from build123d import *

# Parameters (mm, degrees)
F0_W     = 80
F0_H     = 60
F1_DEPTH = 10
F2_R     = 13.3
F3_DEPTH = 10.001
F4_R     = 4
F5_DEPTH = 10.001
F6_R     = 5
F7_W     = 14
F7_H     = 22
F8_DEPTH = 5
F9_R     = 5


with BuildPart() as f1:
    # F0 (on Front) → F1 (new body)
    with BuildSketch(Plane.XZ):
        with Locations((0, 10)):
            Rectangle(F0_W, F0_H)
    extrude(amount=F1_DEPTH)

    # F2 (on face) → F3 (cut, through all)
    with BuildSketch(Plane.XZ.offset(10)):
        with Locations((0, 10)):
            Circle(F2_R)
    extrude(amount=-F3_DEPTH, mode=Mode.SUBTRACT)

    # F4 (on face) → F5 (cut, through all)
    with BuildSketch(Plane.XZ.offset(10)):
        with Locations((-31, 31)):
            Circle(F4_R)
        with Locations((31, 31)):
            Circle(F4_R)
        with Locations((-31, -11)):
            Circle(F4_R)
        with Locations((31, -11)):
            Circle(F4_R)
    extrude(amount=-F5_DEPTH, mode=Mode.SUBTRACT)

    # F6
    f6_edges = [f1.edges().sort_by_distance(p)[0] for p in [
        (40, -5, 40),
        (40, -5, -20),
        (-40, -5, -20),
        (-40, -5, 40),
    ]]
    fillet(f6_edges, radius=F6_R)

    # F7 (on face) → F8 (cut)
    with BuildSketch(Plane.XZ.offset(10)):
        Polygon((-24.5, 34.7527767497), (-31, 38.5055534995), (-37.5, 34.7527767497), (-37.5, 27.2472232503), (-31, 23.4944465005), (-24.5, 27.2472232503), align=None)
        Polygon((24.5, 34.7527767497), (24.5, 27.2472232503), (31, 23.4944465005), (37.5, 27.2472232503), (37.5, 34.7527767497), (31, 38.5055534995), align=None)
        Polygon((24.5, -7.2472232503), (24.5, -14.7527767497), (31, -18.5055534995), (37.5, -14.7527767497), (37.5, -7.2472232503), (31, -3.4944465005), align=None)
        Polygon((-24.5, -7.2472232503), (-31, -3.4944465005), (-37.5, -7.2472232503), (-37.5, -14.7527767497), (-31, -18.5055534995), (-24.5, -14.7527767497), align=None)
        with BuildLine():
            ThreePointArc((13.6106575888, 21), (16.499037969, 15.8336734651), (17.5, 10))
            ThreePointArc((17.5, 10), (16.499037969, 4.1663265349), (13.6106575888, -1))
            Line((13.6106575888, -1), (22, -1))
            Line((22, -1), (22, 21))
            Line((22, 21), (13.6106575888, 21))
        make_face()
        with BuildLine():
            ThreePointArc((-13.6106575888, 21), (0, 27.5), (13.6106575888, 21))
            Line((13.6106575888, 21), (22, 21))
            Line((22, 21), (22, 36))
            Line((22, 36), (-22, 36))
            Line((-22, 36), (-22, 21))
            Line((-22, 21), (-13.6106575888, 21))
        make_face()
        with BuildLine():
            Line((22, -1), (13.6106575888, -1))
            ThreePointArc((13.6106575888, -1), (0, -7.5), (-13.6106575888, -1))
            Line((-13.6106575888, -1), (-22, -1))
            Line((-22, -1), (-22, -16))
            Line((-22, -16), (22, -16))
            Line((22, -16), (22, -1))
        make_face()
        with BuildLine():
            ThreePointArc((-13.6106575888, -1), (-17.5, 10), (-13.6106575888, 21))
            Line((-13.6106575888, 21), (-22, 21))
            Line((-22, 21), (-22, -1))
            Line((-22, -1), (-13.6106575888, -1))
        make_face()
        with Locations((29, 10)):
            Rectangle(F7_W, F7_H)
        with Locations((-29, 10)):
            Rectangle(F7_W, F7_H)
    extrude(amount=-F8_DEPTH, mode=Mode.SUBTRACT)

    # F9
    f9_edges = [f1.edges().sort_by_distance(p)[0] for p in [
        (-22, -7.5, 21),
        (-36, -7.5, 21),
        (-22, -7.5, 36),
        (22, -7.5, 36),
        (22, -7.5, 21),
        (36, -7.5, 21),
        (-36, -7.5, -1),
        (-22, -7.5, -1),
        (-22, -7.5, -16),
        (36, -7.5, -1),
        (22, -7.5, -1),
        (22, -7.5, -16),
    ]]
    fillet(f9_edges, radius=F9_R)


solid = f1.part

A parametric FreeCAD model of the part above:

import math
import FreeCAD as App
import Part
import Sketcher

V = App.Vector
Q = App.Units.Quantity


def edges_at(feature, points):
    """Names of the edges that pass closest to the given points."""
    edges = feature.Shape.Edges
    near = lambda p: min(range(len(edges)), key=lambda i: edges[i].distToShape(Part.Vertex(*p))[0])
    return sorted({f"Edge{near(p) + 1}" for p in points})

doc = App.newDocument("Part")
body = doc.addObject("PartDesign::Body", "Body")

# Sketch on XZ plane
sketch1 = body.newObject("Sketcher::SketchObject", "Sketch")
sketch1.AttachmentSupport = (doc.getObject("XZ_Plane"), [""])
sketch1.MapMode = "FlatFace"
sketch1.addGeometry([
    Part.LineSegment(V(-40, 40, 0), V(-40, -20, 0)),
    Part.LineSegment(V(-40, -20, 0), V(40, -20, 0)),
    Part.LineSegment(V(40, -20, 0), V(40, 40, 0)),
    Part.LineSegment(V(40, 40, 0), V(-40, 40, 0)),
], False)
sketch1.addConstraint([
    Sketcher.Constraint("Coincident", 0, 2, 1, 1),
    Sketcher.Constraint("Coincident", 1, 2, 2, 1),
    Sketcher.Constraint("Coincident", 2, 2, 3, 1),
    Sketcher.Constraint("Coincident", 3, 2, 0, 1),
    Sketcher.Constraint("Vertical", 0),
    Sketcher.Constraint("Horizontal", 1),
    Sketcher.Constraint("Vertical", 2),
    Sketcher.Constraint("Horizontal", 3),
    Sketcher.Constraint("DistanceX", 1, 1, 1, 2, 80.0),
    Sketcher.Constraint("DistanceY", 0, 2, 0, 1, 60.0),
    Sketcher.Constraint("DistanceX", 0, 2, -1, 1, 40.0),
    Sketcher.Constraint("DistanceY", 0, 2, -1, 1, 20.0),
])
pad1 = body.newObject("PartDesign::Pad", "Pad")
pad1.Profile = sketch1
pad1.Length = 10

# Sketch on XZ plane
sketch2 = body.newObject("Sketcher::SketchObject", "Sketch001")
sketch2.AttachmentSupport = (doc.getObject("XZ_Plane"), [""])
sketch2.MapMode = "FlatFace"
sketch2.AttachmentOffset = App.Placement(V(0, 0, 10), App.Rotation())
sketch2.addGeometry(Part.Circle(V(0, 10, 0), V(0, 0, 1), 13), False)
sketch2.addConstraint([
    Sketcher.Constraint("PointOnObject", 0, 3, -2),
    Sketcher.Constraint("Diameter", 0, 26.6),
    Sketcher.Constraint("DistanceY", -1, 1, 0, 3, 10.0),
])
pocket1 = body.newObject("PartDesign::Pocket", "Pocket")
pocket1.Profile = sketch2
pocket1.Type = "ThroughAll"

# Sketch on XZ plane
sketch3 = body.newObject("Sketcher::SketchObject", "Sketch002")
sketch3.AttachmentSupport = (doc.getObject("XZ_Plane"), [""])
sketch3.MapMode = "FlatFace"
sketch3.AttachmentOffset = App.Placement(V(0, 0, 10), App.Rotation())
sketch3.addGeometry([
    Part.Circle(V(-31, 31, 0), V(0, 0, 1), 4),
    Part.Circle(V(31, 31, 0), V(0, 0, 1), 4),
    Part.Circle(V(-31, -11, 0), V(0, 0, 1), 4),
    Part.Circle(V(31, -11, 0), V(0, 0, 1), 4),
], False)
sketch3.addConstraint([
    Sketcher.Constraint("Equal", 0, 1),
    Sketcher.Constraint("Equal", 1, 2),
    Sketcher.Constraint("Equal", 2, 3),
    Sketcher.Constraint("Symmetric", 0, 3, 1, 3, -2),
    Sketcher.Constraint("Symmetric", 2, 3, 3, 3, -2),
    Sketcher.Constraint("Vertical", 0, 3, 2, 3),
    Sketcher.Constraint("Diameter", 0, 8.0),
    Sketcher.Constraint("DistanceX", 0, 3, -1, 1, 31.0),
    Sketcher.Constraint("DistanceY", -1, 1, 0, 3, 31.0),
    Sketcher.Constraint("DistanceY", 2, 3, -1, 1, 11.0),
])
pocket2 = body.newObject("PartDesign::Pocket", "Pocket001")
pocket2.Profile = sketch3
pocket2.Type = "ThroughAll"
doc.recompute()

fillet = body.newObject("PartDesign::Fillet", "Fillet")
fillet.Base = (pocket2, edges_at(pocket2, [
    (40, -5, 40),
    (40, -5, -20),
    (-40, -5, -20),
    (-40, -5, 40),
]))
fillet.Radius = 5

# Sketch on XZ plane
sketch4 = body.newObject("Sketcher::SketchObject", "Sketch003")
sketch4.AttachmentSupport = (doc.getObject("XZ_Plane"), [""])
sketch4.MapMode = "FlatFace"
sketch4.AttachmentOffset = App.Placement(V(0, 0, 10), App.Rotation())
sketch4.addGeometry([
    Part.LineSegment(V(-24, 35, 0), V(-31, 39, 0)),  # 0
    Part.LineSegment(V(-31, 39, 0), V(-38, 35, 0)),  # 1
    Part.LineSegment(V(-38, 35, 0), V(-38, 27, 0)),  # 2
    Part.LineSegment(V(-38, 27, 0), V(-31, 23, 0)),  # 3
    Part.LineSegment(V(-31, 23, 0), V(-24, 27, 0)),  # 4
    Part.LineSegment(V(-24, 27, 0), V(-24, 35, 0)),  # 5
    Part.LineSegment(V(24, 35, 0), V(24, 27, 0)),  # 6
    Part.LineSegment(V(24, 27, 0), V(31, 23, 0)),  # 7
    Part.LineSegment(V(31, 23, 0), V(38, 27, 0)),  # 8
    Part.LineSegment(V(38, 27, 0), V(38, 35, 0)),  # 9
    Part.LineSegment(V(38, 35, 0), V(31, 39, 0)),  # 10
    Part.LineSegment(V(31, 39, 0), V(24, 35, 0)),  # 11
    Part.LineSegment(V(24, -7, 0), V(24, -15, 0)),  # 12
    Part.LineSegment(V(24, -15, 0), V(31, -19, 0)),  # 13
    Part.LineSegment(V(31, -19, 0), V(38, -15, 0)),  # 14
    Part.LineSegment(V(38, -15, 0), V(38, -7, 0)),  # 15
    Part.LineSegment(V(38, -7, 0), V(31, -3, 0)),  # 16
    Part.LineSegment(V(31, -3, 0), V(24, -7, 0)),  # 17
    Part.LineSegment(V(-24, -7, 0), V(-31, -3, 0)),  # 18
    Part.LineSegment(V(-31, -3, 0), V(-38, -7, 0)),  # 19
    Part.LineSegment(V(-38, -7, 0), V(-38, -15, 0)),  # 20
    Part.LineSegment(V(-38, -15, 0), V(-31, -19, 0)),  # 21
    Part.LineSegment(V(-31, -19, 0), V(-24, -15, 0)),  # 22
    Part.LineSegment(V(-24, -15, 0), V(-24, -7, 0)),  # 23
    Part.LineSegment(V(-22, -16, 0), V(22, -16, 0)),  # 24
    Part.LineSegment(V(22, -16, 0), V(22, -1, 0)),  # 25
    Part.LineSegment(V(22, -1, 0), V(36, -1, 0)),  # 26
    Part.LineSegment(V(36, -1, 0), V(36, 21, 0)),  # 27
    Part.LineSegment(V(36, 21, 0), V(22, 21, 0)),  # 28
    Part.LineSegment(V(22, 21, 0), V(22, 36, 0)),  # 29
    Part.LineSegment(V(22, 36, 0), V(-22, 36, 0)),  # 30
    Part.LineSegment(V(-22, 36, 0), V(-22, 21, 0)),  # 31
    Part.LineSegment(V(-22, 21, 0), V(-36, 21, 0)),  # 32
    Part.LineSegment(V(-36, 21, 0), V(-36, -1, 0)),  # 33
    Part.LineSegment(V(-36, -1, 0), V(-22, -1, 0)),  # 34
    Part.LineSegment(V(-22, -1, 0), V(-22, -16, 0)),  # 35
    Part.ArcOfCircle(Part.Circle(V(0, 10, 0), V(0, 0, 1), 18), math.radians(-39), math.radians(39)),  # 36
    Part.ArcOfCircle(Part.Circle(V(0, 10, 0), V(0, 0, 1), 18), math.radians(-141), math.radians(-39)),  # 37
    Part.ArcOfCircle(Part.Circle(V(0, 10, 0), V(0, 0, 1), 18), math.radians(141), math.radians(219)),  # 38
    Part.ArcOfCircle(Part.Circle(V(0, 10, 0), V(0, 0, 1), 18), math.radians(39), math.radians(141)),  # 39
], False)
sketch4.addConstraint([
    Sketcher.Constraint("Coincident", 0, 2, 1, 1),
    Sketcher.Constraint("Coincident", 1, 2, 2, 1),
    Sketcher.Constraint("Coincident", 2, 2, 3, 1),
    Sketcher.Constraint("Coincident", 3, 2, 4, 1),
    Sketcher.Constraint("Coincident", 4, 2, 5, 1),
    Sketcher.Constraint("Coincident", 5, 2, 0, 1),
    Sketcher.Constraint("Coincident", 6, 2, 7, 1),
    Sketcher.Constraint("Coincident", 7, 2, 8, 1),
    Sketcher.Constraint("Coincident", 8, 2, 9, 1),
    Sketcher.Constraint("Coincident", 9, 2, 10, 1),
    Sketcher.Constraint("Coincident", 10, 2, 11, 1),
    Sketcher.Constraint("Coincident", 11, 2, 6, 1),
    Sketcher.Constraint("Coincident", 12, 2, 13, 1),
    Sketcher.Constraint("Coincident", 13, 2, 14, 1),
    Sketcher.Constraint("Coincident", 14, 2, 15, 1),
    Sketcher.Constraint("Coincident", 15, 2, 16, 1),
    Sketcher.Constraint("Coincident", 16, 2, 17, 1),
    Sketcher.Constraint("Coincident", 17, 2, 12, 1),
    Sketcher.Constraint("Coincident", 18, 2, 19, 1),
    Sketcher.Constraint("Coincident", 19, 2, 20, 1),
    Sketcher.Constraint("Coincident", 20, 2, 21, 1),
    Sketcher.Constraint("Coincident", 21, 2, 22, 1),
    Sketcher.Constraint("Coincident", 22, 2, 23, 1),
    Sketcher.Constraint("Coincident", 23, 2, 18, 1),
    Sketcher.Constraint("Coincident", 24, 2, 25, 1),
    Sketcher.Constraint("Coincident", 25, 2, 26, 1),
    Sketcher.Constraint("Coincident", 26, 2, 27, 1),
    Sketcher.Constraint("Coincident", 27, 2, 28, 1),
    Sketcher.Constraint("Coincident", 28, 2, 29, 1),
    Sketcher.Constraint("Coincident", 29, 2, 30, 1),
    Sketcher.Constraint("Coincident", 30, 2, 31, 1),
    Sketcher.Constraint("Coincident", 31, 2, 32, 1),
    Sketcher.Constraint("Coincident", 32, 2, 33, 1),
    Sketcher.Constraint("Coincident", 33, 2, 34, 1),
    Sketcher.Constraint("Coincident", 34, 2, 35, 1),
    Sketcher.Constraint("Coincident", 35, 2, 24, 1),
    Sketcher.Constraint("Tangent", 36, 1, 37, 2),
    Sketcher.Constraint("Tangent", 37, 1, 38, 2),
    Sketcher.Constraint("Tangent", 38, 1, 39, 2),
    Sketcher.Constraint("Tangent", 39, 1, 36, 2),
    Sketcher.Constraint("Vertical", 2),
    Sketcher.Constraint("Vertical", 5),
    Sketcher.Constraint("Vertical", 6),
    Sketcher.Constraint("Vertical", 9),
    Sketcher.Constraint("Vertical", 12),
    Sketcher.Constraint("Vertical", 15),
    Sketcher.Constraint("Vertical", 20),
    Sketcher.Constraint("Vertical", 23),
    Sketcher.Constraint("Horizontal", 24),
    Sketcher.Constraint("Vertical", 25),
    Sketcher.Constraint("Horizontal", 26),
    Sketcher.Constraint("Vertical", 27),
    Sketcher.Constraint("Horizontal", 28),
    Sketcher.Constraint("Vertical", 29),
    Sketcher.Constraint("Horizontal", 30),
    Sketcher.Constraint("Vertical", 31),
    Sketcher.Constraint("Horizontal", 32),
    Sketcher.Constraint("Vertical", 33),
    Sketcher.Constraint("Horizontal", 34),
    Sketcher.Constraint("Vertical", 35),
    Sketcher.Constraint("Equal", 36, 37),
    Sketcher.Constraint("Symmetric", 4, 2, 6, 2, -2),
    Sketcher.Constraint("Symmetric", 3, 2, 7, 2, -2),
    Sketcher.Constraint("Symmetric", 2, 2, 8, 2, -2),
    Sketcher.Constraint("Symmetric", 0, 2, 10, 2, -2),
    Sketcher.Constraint("Symmetric", 16, 2, 18, 2, -2),
    Sketcher.Constraint("Symmetric", 15, 2, 19, 2, -2),
    Sketcher.Constraint("Symmetric", 13, 2, 21, 2, -2),
    Sketcher.Constraint("Symmetric", 12, 2, 22, 2, -2),
    Sketcher.Constraint("Symmetric", 28, 2, 31, 2, -2),
    Sketcher.Constraint("Symmetric", 26, 2, 33, 2, -2),
    Sketcher.Constraint("Symmetric", 36, 1, 37, 1, -2),
    Sketcher.Constraint("Parallel", 0, 3),
    Sketcher.Constraint("Parallel", 1, 4),
    Sketcher.Constraint("Parallel", 3, 7),
    Sketcher.Constraint("Parallel", 7, 10),
    Sketcher.Constraint("Parallel", 8, 11),
    Sketcher.Constraint("Parallel", 10, 13),
    Sketcher.Constraint("Parallel", 11, 14),
    Sketcher.Constraint("Parallel", 13, 16),
    Sketcher.Constraint("Parallel", 14, 17),
    Sketcher.Constraint("Parallel", 16, 18),
    Sketcher.Constraint("Parallel", 18, 21),
    Sketcher.Constraint("Horizontal", 2, 2, 4, 2),
    Sketcher.Constraint("Horizontal", 1, 2, 5, 2),
    Sketcher.Constraint("Horizontal", 12, 2, 14, 2),
    Sketcher.Constraint("Horizontal", 15, 2, 17, 2),
    Sketcher.Constraint("Horizontal", 34, 2, 36, 1),
    Sketcher.Constraint("Horizontal", 32, 2, 38, 1),
    Sketcher.Constraint("Horizontal", 38, 1, 39, 1),
    Sketcher.Constraint("Vertical", 11, 2, 12, 2),
    Sketcher.Constraint("Vertical", 10, 2, 13, 2),
    Sketcher.Constraint("Vertical", 25, 2, 28, 2),
    Sketcher.Constraint("Vertical", 31, 2, 34, 2),
    Sketcher.Constraint("Vertical", 37, 1, 38, 1),
    Sketcher.Constraint("Equal", 9, 12),
    Sketcher.Constraint("Equal", 25, 29),
    Sketcher.Constraint("Radius", 36, 17.5),
    Sketcher.Constraint("DistanceX", 24, 1, 24, 2, 44.0),
    Sketcher.Constraint("DistanceX", 26, 1, 26, 2, 14.0),
    Sketcher.Constraint("DistanceY", 25, 1, 25, 2, 15.0),
    Sketcher.Constraint("DistanceY", 27, 1, 27, 2, 22.0),
    Sketcher.Constraint("Angle", 0, Q("150 deg")),
    Sketcher.Constraint("DistanceY", -1, 1, 36, 3, 10.0),
    Sketcher.Constraint("DistanceX", 0, 2, -1, 1, 31.0),
    Sketcher.Constraint("DistanceX", 2, 2, 4, 2, 13.0),
    Sketcher.Constraint("DistanceY", 13, 2, 7, 2, 42.0),
    Sketcher.Constraint("DistanceY", 2, 2, 2, 1, 7.505554),
    Sketcher.Constraint("DistanceY", -1, 1, 0, 2, 38.505553),
])
pocket3 = body.newObject("PartDesign::Pocket", "Pocket002")
pocket3.Profile = sketch4
pocket3.Length = 5
doc.recompute()

fillet2 = body.newObject("PartDesign::Fillet", "Fillet001")
fillet2.Base = (pocket3, edges_at(pocket3, [
    (-22, -7.5, 21),
    (-36, -7.5, 21),
    (-22, -7.5, 36),
    (22, -7.5, 36),
    (22, -7.5, 21),
    (36, -7.5, 21),
    (-36, -7.5, -1),
    (-22, -7.5, -1),
    (-22, -7.5, -16),
    (36, -7.5, -1),
    (22, -7.5, -1),
    (22, -7.5, -16),
]))
fillet2.Radius = 5

doc.recompute()
